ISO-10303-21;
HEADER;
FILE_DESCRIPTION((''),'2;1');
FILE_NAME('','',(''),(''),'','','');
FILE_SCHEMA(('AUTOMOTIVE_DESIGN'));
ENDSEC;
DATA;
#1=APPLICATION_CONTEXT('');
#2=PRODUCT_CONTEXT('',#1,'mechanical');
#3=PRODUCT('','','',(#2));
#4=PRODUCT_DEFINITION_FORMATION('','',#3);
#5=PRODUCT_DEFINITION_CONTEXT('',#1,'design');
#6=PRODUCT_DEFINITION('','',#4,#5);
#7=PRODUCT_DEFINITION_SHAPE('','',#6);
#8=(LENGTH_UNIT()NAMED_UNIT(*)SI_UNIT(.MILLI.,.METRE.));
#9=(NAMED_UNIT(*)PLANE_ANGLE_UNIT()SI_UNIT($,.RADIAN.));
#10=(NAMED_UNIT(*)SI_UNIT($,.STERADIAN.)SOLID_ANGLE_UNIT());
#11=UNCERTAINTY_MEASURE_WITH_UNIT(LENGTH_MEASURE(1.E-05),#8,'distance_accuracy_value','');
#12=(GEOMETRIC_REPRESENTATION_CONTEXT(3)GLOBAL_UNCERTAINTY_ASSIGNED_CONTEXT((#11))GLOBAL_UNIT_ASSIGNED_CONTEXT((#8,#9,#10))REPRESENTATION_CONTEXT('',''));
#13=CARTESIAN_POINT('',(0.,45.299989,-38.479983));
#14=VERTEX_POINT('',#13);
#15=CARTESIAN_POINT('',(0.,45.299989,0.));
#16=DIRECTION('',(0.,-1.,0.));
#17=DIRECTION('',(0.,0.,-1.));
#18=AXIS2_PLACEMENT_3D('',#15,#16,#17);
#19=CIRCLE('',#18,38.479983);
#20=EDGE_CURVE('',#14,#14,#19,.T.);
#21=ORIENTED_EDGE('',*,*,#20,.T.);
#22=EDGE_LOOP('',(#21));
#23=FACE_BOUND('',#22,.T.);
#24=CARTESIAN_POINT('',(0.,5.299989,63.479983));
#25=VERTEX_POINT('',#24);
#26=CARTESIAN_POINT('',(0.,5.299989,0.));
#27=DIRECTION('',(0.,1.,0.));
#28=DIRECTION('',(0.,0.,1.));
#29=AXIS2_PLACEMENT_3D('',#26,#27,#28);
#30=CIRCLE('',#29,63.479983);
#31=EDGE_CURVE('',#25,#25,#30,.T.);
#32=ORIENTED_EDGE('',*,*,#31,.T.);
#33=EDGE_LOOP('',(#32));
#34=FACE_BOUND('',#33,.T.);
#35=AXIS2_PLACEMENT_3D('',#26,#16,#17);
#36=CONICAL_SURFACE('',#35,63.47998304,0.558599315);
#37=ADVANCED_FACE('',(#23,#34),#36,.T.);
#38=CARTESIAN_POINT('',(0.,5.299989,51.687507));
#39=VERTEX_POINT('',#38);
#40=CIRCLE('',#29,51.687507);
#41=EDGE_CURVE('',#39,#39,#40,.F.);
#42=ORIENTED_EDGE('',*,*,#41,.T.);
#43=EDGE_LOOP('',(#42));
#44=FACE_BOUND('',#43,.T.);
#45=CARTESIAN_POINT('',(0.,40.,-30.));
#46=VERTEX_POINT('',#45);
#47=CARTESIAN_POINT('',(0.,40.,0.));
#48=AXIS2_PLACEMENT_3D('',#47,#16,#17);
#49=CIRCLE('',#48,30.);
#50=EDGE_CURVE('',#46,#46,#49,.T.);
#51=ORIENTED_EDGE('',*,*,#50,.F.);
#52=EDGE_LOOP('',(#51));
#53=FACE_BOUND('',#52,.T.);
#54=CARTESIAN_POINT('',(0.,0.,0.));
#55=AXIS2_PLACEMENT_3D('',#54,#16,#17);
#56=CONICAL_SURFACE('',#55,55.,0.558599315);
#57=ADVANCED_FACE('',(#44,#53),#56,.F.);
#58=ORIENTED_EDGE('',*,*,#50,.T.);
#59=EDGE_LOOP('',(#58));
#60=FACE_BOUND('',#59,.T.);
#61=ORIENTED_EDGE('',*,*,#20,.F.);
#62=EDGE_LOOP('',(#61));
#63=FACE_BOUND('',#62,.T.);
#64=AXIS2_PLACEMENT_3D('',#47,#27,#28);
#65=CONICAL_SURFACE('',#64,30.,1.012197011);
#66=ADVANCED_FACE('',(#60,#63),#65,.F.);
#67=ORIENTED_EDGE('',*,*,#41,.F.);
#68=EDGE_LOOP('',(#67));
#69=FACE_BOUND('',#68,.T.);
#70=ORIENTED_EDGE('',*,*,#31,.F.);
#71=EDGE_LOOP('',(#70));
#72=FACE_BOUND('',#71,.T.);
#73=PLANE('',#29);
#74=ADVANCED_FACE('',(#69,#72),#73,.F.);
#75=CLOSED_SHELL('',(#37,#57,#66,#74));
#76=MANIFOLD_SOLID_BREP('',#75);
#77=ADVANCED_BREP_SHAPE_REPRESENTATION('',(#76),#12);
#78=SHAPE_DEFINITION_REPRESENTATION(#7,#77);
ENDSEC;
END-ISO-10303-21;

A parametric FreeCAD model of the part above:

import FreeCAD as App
import Part
import Sketcher

V = App.Vector
Q = App.Units.Quantity

doc = App.newDocument("Part")
body = doc.addObject("PartDesign::Body", "Body")

# Sketch on XY plane
sketch1 = doc.addObject("Sketcher::SketchObject", "Sketch")
body.addObject(sketch1)
sketch1.AttachmentSupport = (doc.XY_Plane, [""])
sketch1.MapMode = "FlatFace"
sketch1.addGeometry([
    Part.LineSegment(V(30, 40, 0), V(55, 0, 0)),
    Part.LineSegment(V(55, 0, 0), V(63, 5, 0)),
    Part.LineSegment(V(63, 5, 0), V(38, 45, 0)),
    Part.LineSegment(V(38, 45, 0), V(30, 40, 0)),
], False)
sketch1.addConstraint([
    Sketcher.Constraint("Coincident", 0, 2, 1, 1),
    Sketcher.Constraint("Coincident", 1, 2, 2, 1),
    Sketcher.Constraint("Coincident", 2, 2, 3, 1),
    Sketcher.Constraint("Coincident", 3, 2, 0, 1),
    Sketcher.Constraint("PointOnObject", 0, 2, -1),
    Sketcher.Constraint("Perpendicular", 0, 1),
    Sketcher.Constraint("Perpendicular", 1, 2),
    Sketcher.Constraint("Perpendicular", 2, 3),
    Sketcher.Constraint("Distance", 1, Q("10 mm")),
    Sketcher.Constraint("DistanceX", -1, 1, 0, 2, Q("55 mm")),
    Sketcher.Constraint("DistanceX", -1, 1, 3, 2, Q("30 mm")),
    Sketcher.Constraint("DistanceY", -1, 1, 3, 2, Q("40 mm")),
])
revolution = doc.addObject("PartDesign::Revolution", "Revolution")
body.addObject(revolution)
revolution.Profile = sketch1
revolution.ReferenceAxis = (sketch1, ["V_Axis"])
revolution.Angle = 360

# Sketch on XZ plane
sketch2 = doc.addObject("Sketcher::SketchObject", "Sketch001")
body.addObject(sketch2)
sketch2.AttachmentSupport = (doc.XZ_Plane, [""])
sketch2.MapMode = "FlatFace"
sketch2.AttachmentOffset = App.Placement(V(0, 0, -5.299989), App.Rotation())
sketch2.addGeometry([
    Part.LineSegment(V(-77, -71, 0), V(-77, 72, 0)),
    Part.LineSegment(V(-77, 72, 0), V(75, 72, 0)),
    Part.LineSegment(V(75, 72, 0), V(75, -71, 0)),
    Part.LineSegment(V(75, -71, 0), V(-77, -71, 0)),
], False)
sketch2.addConstraint([
    Sketcher.Constraint("Coincident", 0, 2, 1, 1),
    Sketcher.Constraint("Coincident", 1, 2, 2, 1),
    Sketcher.Constraint("Coincident", 2, 2, 3, 1),
    Sketcher.Constraint("Coincident", 3, 2, 0, 1),
    Sketcher.Constraint("Vertical", 0),
    Sketcher.Constraint("Horizontal", 1),
    Sketcher.Constraint("Vertical", 2),
    Sketcher.Constraint("Horizontal", 3),
    Sketcher.Constraint("DistanceX", 1, 1, 1, 2, Q("151.279034 mm")),
    Sketcher.Constraint("DistanceY", 0, 1, 0, 2, Q("142.699955 mm")),
    Sketcher.Constraint("DistanceX", 0, 2, -1, 1, Q("76.70405 mm")),
    Sketcher.Constraint("DistanceY", 2, 2, -1, 1, Q("70.982891 mm")),
])
pocket1 = doc.addObject("PartDesign::Pocket", "Pocket")
body.addObject(pocket1)
pocket1.Profile = sketch2
pocket1.Length = 10
pocket1.Reversed = True

doc.recompute()
